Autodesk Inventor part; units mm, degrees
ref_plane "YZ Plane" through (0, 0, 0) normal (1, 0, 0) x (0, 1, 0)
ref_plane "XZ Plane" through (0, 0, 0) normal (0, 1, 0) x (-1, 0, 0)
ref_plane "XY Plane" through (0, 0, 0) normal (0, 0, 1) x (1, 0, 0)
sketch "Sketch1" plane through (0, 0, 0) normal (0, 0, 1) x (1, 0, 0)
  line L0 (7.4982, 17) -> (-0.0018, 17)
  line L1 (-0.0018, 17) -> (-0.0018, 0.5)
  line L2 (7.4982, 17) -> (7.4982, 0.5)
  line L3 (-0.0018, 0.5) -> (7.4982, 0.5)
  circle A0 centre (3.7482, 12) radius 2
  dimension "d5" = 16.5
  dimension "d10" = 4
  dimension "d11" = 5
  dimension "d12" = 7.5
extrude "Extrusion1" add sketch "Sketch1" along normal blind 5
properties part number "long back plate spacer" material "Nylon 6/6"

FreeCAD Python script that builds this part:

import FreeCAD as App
import Part
import Sketcher
from FreeCAD import Vector
Q = App.Units.Quantity


def add_polygon(sketch, points):
    """Adds a closed chain of lines whose ends are joined by coincident constraints."""
    first, n = sketch.GeometryCount, len(points)
    for a, b in zip(points, points[1:] + points[:1]):
        sketch.addGeometry(Part.LineSegment(App.Vector(*a, 0), App.Vector(*b, 0)), False)
    for i in range(n):
        sketch.addConstraint(Sketcher.Constraint("Coincident", first + i, 2, first + (i + 1) % n, 1))

doc = App.newDocument("Part")
body = doc.addObject("PartDesign::Body", "Body")

sketch1 = body.newObject("Sketcher::SketchObject", "Sketch")
sketch1.AttachmentSupport = (doc.getObject("XY_Plane"), [""])
sketch1.MapMode = "FlatFace"
add_polygon(sketch1, [(7.4982, 0.5), (7.4982, 17), (-0.0018, 17), (-0.0018, 0.5)])
sketch1.addGeometry(Part.Circle(Vector(3.7482, 12, 0), Vector(0, 0, 1), 2), False)
sketch1.addConstraint(Sketcher.Constraint("Vertical", 0))
sketch1.addConstraint(Sketcher.Constraint("Horizontal", 1))
sketch1.addConstraint(Sketcher.Constraint("Vertical", 2))
sketch1.addConstraint(Sketcher.Constraint("Horizontal", 3))
sketch1.addConstraint(Sketcher.Constraint("Diameter", 4, Q("4 mm")))
sketch1.addConstraint(Sketcher.Constraint("DistanceX", 1, 2, 1, 1, Q("7.5 mm")))
sketch1.addConstraint(Sketcher.Constraint("DistanceY", 0, 1, 0, 2, Q("16.5 mm")))
sketch1.addConstraint(Sketcher.Constraint("DistanceY", 4, 3, 0, 2, Q("5 mm")))
sketch1.addConstraint(Sketcher.Constraint("DistanceY", -1, 1, 4, 3, Q("12 mm")))
sketch1.addConstraint(Sketcher.Constraint("DistanceX", 4, 3, 0, 2, Q("3.75 mm")))
sketch1.addConstraint(Sketcher.Constraint("DistanceX", -1, 1, 4, 3, Q("3.7482 mm")))
pad1 = body.newObject("PartDesign::Pad", "Pad")
pad1.Profile = sketch1
pad1.Length = 5

doc.recompute()
